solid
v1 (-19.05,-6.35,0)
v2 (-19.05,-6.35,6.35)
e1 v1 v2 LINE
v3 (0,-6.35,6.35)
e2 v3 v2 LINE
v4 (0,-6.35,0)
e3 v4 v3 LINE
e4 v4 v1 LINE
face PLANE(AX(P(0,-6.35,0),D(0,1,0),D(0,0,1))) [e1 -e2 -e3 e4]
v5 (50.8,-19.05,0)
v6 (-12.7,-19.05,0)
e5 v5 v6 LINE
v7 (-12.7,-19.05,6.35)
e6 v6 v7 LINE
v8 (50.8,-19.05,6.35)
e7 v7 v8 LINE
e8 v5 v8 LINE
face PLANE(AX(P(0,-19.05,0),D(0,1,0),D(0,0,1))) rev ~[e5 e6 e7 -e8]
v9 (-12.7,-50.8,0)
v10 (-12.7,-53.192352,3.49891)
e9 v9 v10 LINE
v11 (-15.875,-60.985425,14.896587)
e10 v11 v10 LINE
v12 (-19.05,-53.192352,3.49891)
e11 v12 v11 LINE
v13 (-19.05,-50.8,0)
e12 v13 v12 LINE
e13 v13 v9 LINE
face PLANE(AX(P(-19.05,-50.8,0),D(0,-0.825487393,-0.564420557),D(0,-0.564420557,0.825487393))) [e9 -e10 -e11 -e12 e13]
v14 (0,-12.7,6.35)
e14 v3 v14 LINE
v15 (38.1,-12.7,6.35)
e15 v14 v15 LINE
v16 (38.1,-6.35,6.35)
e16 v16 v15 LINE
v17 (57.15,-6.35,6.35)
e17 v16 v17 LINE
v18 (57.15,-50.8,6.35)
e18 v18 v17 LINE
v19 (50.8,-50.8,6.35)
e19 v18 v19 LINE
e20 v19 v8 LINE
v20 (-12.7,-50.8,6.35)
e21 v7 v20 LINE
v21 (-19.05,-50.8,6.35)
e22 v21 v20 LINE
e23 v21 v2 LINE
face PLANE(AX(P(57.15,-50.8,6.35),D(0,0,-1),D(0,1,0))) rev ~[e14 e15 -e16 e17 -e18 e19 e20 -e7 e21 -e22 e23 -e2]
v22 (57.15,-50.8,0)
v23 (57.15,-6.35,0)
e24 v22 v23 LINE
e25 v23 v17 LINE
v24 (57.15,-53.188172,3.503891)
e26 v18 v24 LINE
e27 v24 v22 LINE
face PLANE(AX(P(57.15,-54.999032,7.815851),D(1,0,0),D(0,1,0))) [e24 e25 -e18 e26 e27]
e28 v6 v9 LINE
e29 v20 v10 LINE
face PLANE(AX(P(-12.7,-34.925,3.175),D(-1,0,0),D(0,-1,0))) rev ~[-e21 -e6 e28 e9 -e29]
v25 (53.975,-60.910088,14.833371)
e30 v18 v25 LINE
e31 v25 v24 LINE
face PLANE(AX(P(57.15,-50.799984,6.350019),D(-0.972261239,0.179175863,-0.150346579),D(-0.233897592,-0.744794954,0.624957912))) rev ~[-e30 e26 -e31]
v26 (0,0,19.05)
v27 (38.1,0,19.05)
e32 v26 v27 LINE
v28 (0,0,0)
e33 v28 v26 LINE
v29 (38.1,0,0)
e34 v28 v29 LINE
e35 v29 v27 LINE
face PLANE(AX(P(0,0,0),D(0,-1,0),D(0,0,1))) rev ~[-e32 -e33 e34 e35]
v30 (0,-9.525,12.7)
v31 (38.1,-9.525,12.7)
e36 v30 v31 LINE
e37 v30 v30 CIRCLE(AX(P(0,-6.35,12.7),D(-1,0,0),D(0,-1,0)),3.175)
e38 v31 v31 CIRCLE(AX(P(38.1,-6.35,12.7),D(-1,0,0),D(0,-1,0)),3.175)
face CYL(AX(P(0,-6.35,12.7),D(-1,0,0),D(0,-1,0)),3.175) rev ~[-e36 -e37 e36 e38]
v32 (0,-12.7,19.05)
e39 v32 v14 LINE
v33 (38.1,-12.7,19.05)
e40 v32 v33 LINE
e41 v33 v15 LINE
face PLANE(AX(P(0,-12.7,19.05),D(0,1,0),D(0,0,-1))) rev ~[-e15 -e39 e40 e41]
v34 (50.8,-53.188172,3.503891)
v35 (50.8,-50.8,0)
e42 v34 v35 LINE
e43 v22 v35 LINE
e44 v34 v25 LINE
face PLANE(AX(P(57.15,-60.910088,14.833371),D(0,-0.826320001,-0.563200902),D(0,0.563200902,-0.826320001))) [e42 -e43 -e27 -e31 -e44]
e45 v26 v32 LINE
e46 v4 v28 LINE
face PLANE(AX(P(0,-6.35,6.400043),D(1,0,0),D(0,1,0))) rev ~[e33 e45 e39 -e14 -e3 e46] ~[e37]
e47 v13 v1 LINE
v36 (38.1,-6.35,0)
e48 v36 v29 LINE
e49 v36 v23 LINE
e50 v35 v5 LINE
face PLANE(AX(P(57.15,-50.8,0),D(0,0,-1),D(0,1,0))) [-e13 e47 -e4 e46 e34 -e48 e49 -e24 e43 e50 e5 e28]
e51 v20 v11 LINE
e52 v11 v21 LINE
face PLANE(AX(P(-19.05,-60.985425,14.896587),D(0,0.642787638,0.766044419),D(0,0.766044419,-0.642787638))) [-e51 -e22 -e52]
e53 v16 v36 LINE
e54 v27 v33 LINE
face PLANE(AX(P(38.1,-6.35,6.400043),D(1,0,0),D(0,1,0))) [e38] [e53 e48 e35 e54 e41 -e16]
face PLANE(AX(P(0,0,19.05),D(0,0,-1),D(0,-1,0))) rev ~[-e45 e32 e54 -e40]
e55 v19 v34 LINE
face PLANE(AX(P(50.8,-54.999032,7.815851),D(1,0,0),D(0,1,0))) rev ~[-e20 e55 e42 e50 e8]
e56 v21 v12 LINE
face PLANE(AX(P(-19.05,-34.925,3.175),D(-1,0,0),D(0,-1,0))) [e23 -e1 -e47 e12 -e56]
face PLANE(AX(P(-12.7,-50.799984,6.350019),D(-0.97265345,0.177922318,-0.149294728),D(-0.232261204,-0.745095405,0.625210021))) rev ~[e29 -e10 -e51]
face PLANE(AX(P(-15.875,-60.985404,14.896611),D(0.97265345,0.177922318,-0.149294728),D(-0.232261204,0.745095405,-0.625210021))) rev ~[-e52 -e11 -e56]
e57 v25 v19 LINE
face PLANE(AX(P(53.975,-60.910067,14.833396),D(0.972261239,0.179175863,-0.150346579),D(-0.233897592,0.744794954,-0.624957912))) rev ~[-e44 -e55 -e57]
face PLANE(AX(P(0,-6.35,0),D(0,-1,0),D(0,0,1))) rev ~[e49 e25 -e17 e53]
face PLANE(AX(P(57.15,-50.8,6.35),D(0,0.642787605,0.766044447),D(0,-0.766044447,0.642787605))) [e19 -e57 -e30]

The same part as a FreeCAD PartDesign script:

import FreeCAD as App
import Part
import Sketcher
from FreeCAD import Vector
Q = App.Units.Quantity


def add_polygon(sketch, points):
    """Adds a closed chain of lines whose ends are joined by coincident constraints."""
    first, n = sketch.GeometryCount, len(points)
    for a, b in zip(points, points[1:] + points[:1]):
        sketch.addGeometry(Part.LineSegment(App.Vector(*a, 0), App.Vector(*b, 0)), False)
    for i in range(n):
        sketch.addConstraint(Sketcher.Constraint("Coincident", first + i, 2, first + (i + 1) % n, 1))

doc = App.newDocument("Part")
params = doc.addObject("Spreadsheet::Sheet", "Params")
for row, (alias, value) in enumerate([
    ("sketch1_diameter", "0.25 in"),
    ("sketch1_width", "0.5 in"),
    ("sketch1_height", "0.75 in"),
    ("pad1_length", "1.5 in"),
    ("sketch2_width", "0.5 in"),
    ("sketch2_height", "0.25 in"),
    ("pad2_length", "2.25 in"),
    ("sketch3_width", "0.5 in"),
    ("sketch3_height", "0.25 in"),
    ("pad3_length", "0.75 in"),
    ("sketch4_width", "1.25 in"),
    ("sketch4_height", "0.25 in"),
    ("pad4_length", "0.25 in"),
    ("sketch5_width", "1.25 in"),
    ("sketch5_height", "0.25 in"),
    ("pad5_length", "0.25 in"),
    ("sketch6_width", "0.125 in"),
    ("pocket1_length", "1 in"),
    ("sketch7_width", "0.125 in"),
    ("pocket2_length", "1 in"),
], start=1):
    params.set(f"A{row}", alias)
    params.set(f"B{row}", "=" + value)
    params.setAlias(f"B{row}", alias)

body = doc.addObject("PartDesign::Body", "Body")

# Sketch on YZ plane
sketch1 = body.newObject("Sketcher::SketchObject", "Sketch")
sketch1.AttachmentSupport = (doc.getObject("YZ_Plane"), [""])
sketch1.MapMode = "FlatFace"
add_polygon(sketch1, [(-12.7, 0), (0, 0), (0, 19.05), (-12.7, 19.05)])  # lines 0-3
sketch1.addGeometry(Part.Circle(Vector(-6.35, 12.7, 0), Vector(0, 0, 1), 3.175), False)  # 4
sketch1.addConstraint([
    Sketcher.Constraint("Horizontal", 0),
    Sketcher.Constraint("Vertical", 1),
    Sketcher.Constraint("Horizontal", 2),
    Sketcher.Constraint("Vertical", 3),
    Sketcher.Constraint("Coincident", 0, 2, -1, 1),
    Sketcher.Constraint("Diameter", 4, Q("0.25 in")),
    Sketcher.Constraint("DistanceX", 0, 1, 0, 2, Q("0.5 in")),
    Sketcher.Constraint("DistanceY", 1, 1, 1, 2, Q("0.75 in")),
    Sketcher.Constraint("DistanceY", -1, 1, 4, 3, Q("0.5 in")),
    Sketcher.Constraint("DistanceX", 4, 3, -1, 1, Q("0.25 in")),
])
sketch1.setExpression("Constraints[9]", "Params.sketch1_diameter")
sketch1.setExpression("Constraints[10]", "Params.sketch1_width")
sketch1.setExpression("Constraints[11]", "Params.sketch1_height")
pad1 = body.newObject("PartDesign::Pad", "Pad")
pad1.Profile = sketch1
pad1.setExpression("Length", "Params.pad1_length")

# Sketch on YZ plane
sketch2 = body.newObject("Sketcher::SketchObject", "Sketch001")
sketch2.AttachmentSupport = (doc.getObject("YZ_Plane"), [""])
sketch2.MapMode = "FlatFace"
add_polygon(sketch2, [(-6.35, 6.35), (-6.35, 0), (-19.05, 0), (-19.05, 6.35)])  # lines 0-3
sketch2.addConstraint([
    Sketcher.Constraint("Vertical", 0),
    Sketcher.Constraint("Horizontal", 1),
    Sketcher.Constraint("Vertical", 2),
    Sketcher.Constraint("Horizontal", 3),
    Sketcher.Constraint("PointOnObject", 0, 2, -1),
    Sketcher.Constraint("DistanceX", 1, 2, 1, 1, Q("0.5 in")),
    Sketcher.Constraint("DistanceY", 0, 2, 0, 1, Q("0.25 in")),
    Sketcher.Constraint("DistanceX", 0, 2, -1, 1, Q("0.25 in")),
])
sketch2.setExpression("Constraints[9]", "Params.sketch2_width")
sketch2.setExpression("Constraints[10]", "Params.sketch2_height")
pad2 = body.newObject("PartDesign::Pad", "Pad001")
pad2.Profile = sketch2
pad2.setExpression("Length", "Params.pad2_length")

# Sketch on YZ plane
sketch3 = body.newObject("Sketcher::SketchObject", "Sketch002")
sketch3.AttachmentSupport = (doc.getObject("YZ_Plane"), [""])
sketch3.MapMode = "FlatFace"
add_polygon(sketch3, [(-6.35, 6.35), (-6.35, 0), (-19.05, 0), (-19.05, 6.35)])  # lines 0-3
sketch3.addConstraint([
    Sketcher.Constraint("Vertical", 0),
    Sketcher.Constraint("Horizontal", 1),
    Sketcher.Constraint("Vertical", 2),
    Sketcher.Constraint("Horizontal", 3),
    Sketcher.Constraint("PointOnObject", 0, 2, -1),
    Sketcher.Constraint("DistanceX", 1, 2, 1, 1, Q("0.5 in")),
    Sketcher.Constraint("DistanceY", 0, 2, 0, 1, Q("0.25 in")),
    Sketcher.Constraint("DistanceX", 0, 2, -1, 1, Q("0.25 in")),
])
sketch3.setExpression("Constraints[9]", "Params.sketch3_width")
sketch3.setExpression("Constraints[10]", "Params.sketch3_height")
pad3 = body.newObject("PartDesign::Pad", "Pad002")
pad3.Profile = sketch3
pad3.setExpression("Length", "Params.pad3_length")
pad3.Reversed = True

# Sketch on YZ plane
sketch4 = body.newObject("Sketcher::SketchObject", "Sketch003")
sketch4.AttachmentSupport = (doc.getObject("YZ_Plane"), [""])
sketch4.MapMode = "FlatFace"
sketch4.AttachmentOffset = App.Placement(Vector(0, 0, -0.75 * 25.4), App.Rotation())
add_polygon(sketch4, [(-19.05, 6.35), (-19.05, 0), (-50.8, 0), (-60.985425, 14.896587), (-50.8, 6.35)])  # lines 0-4
sketch4.addConstraint([
    Sketcher.Constraint("Vertical", 0),
    Sketcher.Constraint("Horizontal", 1),
    Sketcher.Constraint("Horizontal", 4),
    Sketcher.Constraint("PointOnObject", 0, 2, -1),
    Sketcher.Constraint("Vertical", 1, 2, 3, 2),
    Sketcher.Constraint("DistanceX", 1, 2, -1, 1, Q("2 in")),
    Sketcher.Constraint("Angle", 3, Q("-40.000002 deg")),
    Sketcher.Constraint("DistanceX", 1, 2, 1, 1, Q("1.25 in")),
    Sketcher.Constraint("DistanceY", 0, 2, 0, 1, Q("0.25 in")),
    Sketcher.Constraint("Distance", 2, 18.045808),
])
sketch4.setExpression("Constraints[12]", "Params.sketch4_width")
sketch4.setExpression("Constraints[13]", "Params.sketch4_height")
pad4 = body.newObject("PartDesign::Pad", "Pad003")
pad4.Profile = sketch4
pad4.setExpression("Length", "Params.pad4_length")

# Sketch on YZ plane
sketch5 = body.newObject("Sketcher::SketchObject", "Sketch004")
sketch5.AttachmentSupport = (doc.getObject("YZ_Plane"), [""])
sketch5.MapMode = "FlatFace"
sketch5.AttachmentOffset = App.Placement(Vector(0, 0, 2.25 * 25.4), App.Rotation())
add_polygon(sketch5, [(-50.8, 6.35), (-60.910088, 14.833371), (-50.8, 0), (-19.05, 0), (-19.05, 6.35)])  # lines 0-4
sketch5.addConstraint([
    Sketcher.Constraint("Horizontal", 2),
    Sketcher.Constraint("Vertical", 3),
    Sketcher.Constraint("Horizontal", 4),
    Sketcher.Constraint("PointOnObject", 1, 2, -1),
    Sketcher.Constraint("Vertical", 1, 2, 4, 2),
    Sketcher.Constraint("DistanceX", 1, 2, -1, 1, Q("2 in")),
    Sketcher.Constraint("Angle", 0, Q("140 deg")),
    Sketcher.Constraint("DistanceX", 2, 1, 2, 2, Q("1.25 in")),
    Sketcher.Constraint("DistanceY", 3, 1, 3, 2, Q("0.25 in")),
    Sketcher.Constraint("Distance", 1, 17.951122),
])
sketch5.setExpression("Constraints[12]", "Params.sketch5_width")
sketch5.setExpression("Constraints[13]", "Params.sketch5_height")
pad5 = body.newObject("PartDesign::Pad", "Pad004")
pad5.Profile = sketch5
pad5.setExpression("Length", "Params.pad5_length")
pad5.Reversed = True

# Sketch on an angled plane
sketch6 = body.newObject("Sketcher::SketchObject", "Sketch005")
sketch6.Placement = App.Placement(Vector(0, -17.862572, -21.287784), App.Rotation(Vector(1, 0, 0), Vector(0, 0.766044068, -0.642788057), Vector(0, 0.642788057, 0.766044068), "ZXY"))
add_polygon(sketch6, [(-15.875, -56.292887), (-19.05, -42.996759), (-19.05, -56.292887)])  # lines 0-2
add_polygon(sketch6, [(-12.7, -42.996759), (-15.875, -56.292887), (-12.7, -56.292887)])  # lines 3-5
sketch6.addConstraint([
    Sketcher.Constraint("Vertical", 1),
    Sketcher.Constraint("Horizontal", 2),
    Sketcher.Constraint("Horizontal", 4),
    Sketcher.Constraint("Vertical", 5),
    Sketcher.Constraint("Coincident", 3, 2, 2, 2),
    Sketcher.Constraint("Horizontal", 0, 2, 5, 2),
    Sketcher.Constraint("Equal", 2, 4),
    Sketcher.Constraint("DistanceX", 4, 2, -1, 1, Q("0.5 in")),
    Sketcher.Constraint("DistanceX", 2, 1, 2, 2, Q("0.125 in")),
    Sketcher.Constraint("DistanceY", 1, 2, 1, 1, 13.296128),
    Sketcher.Constraint("DistanceY", 0, 2, -1, 1, 42.996759),
])
sketch6.setExpression("Constraints[14]", "Params.sketch6_width")
pocket1 = body.newObject("PartDesign::Pocket", "Pocket")
pocket1.Profile = sketch6
pocket1.setExpression("Length", "Params.pocket1_length")

# Sketch on an angled plane
sketch7 = body.newObject("Sketcher::SketchObject", "Sketch006")
sketch7.Placement = App.Placement(Vector(0, -17.862572, -21.287784), App.Rotation(Vector(1, 0, 0), Vector(0, 0.766044068, -0.642788057), Vector(0, 0.642788057, 0.766044068), "ZXY"))
add_polygon(sketch7, [(57.15, -42.996759), (53.975, -56.194541), (57.15, -56.194541)])  # lines 0-2
add_polygon(sketch7, [(50.8, -56.194541), (53.975, -56.194541), (50.8, -42.996759)])  # lines 3-5
sketch7.addConstraint([
    Sketcher.Constraint("Horizontal", 1),
    Sketcher.Constraint("Vertical", 2),
    Sketcher.Constraint("Horizontal", 3),
    Sketcher.Constraint("Vertical", 5),
    Sketcher.Constraint("Coincident", 3, 2, 0, 2),
    Sketcher.Constraint("Horizontal", 2, 2, 4, 2),
    Sketcher.Constraint("Equal", 1, 3),
    Sketcher.Constraint("DistanceX", -1, 1, 4, 2, Q("2 in")),
    Sketcher.Constraint("DistanceX", 1, 1, 1, 2, Q("0.125 in")),
    Sketcher.Constraint("DistanceY", 2, 1, 2, 2, 13.197782),
    Sketcher.Constraint("DistanceY", 0, 2, -1, 1, 56.194541),
])
sketch7.setExpression("Constraints[14]", "Params.sketch7_width")
pocket2 = body.newObject("PartDesign::Pocket", "Pocket001")
pocket2.Profile = sketch7
pocket2.setExpression("Length", "Params.pocket2_length")

doc.recompute()
